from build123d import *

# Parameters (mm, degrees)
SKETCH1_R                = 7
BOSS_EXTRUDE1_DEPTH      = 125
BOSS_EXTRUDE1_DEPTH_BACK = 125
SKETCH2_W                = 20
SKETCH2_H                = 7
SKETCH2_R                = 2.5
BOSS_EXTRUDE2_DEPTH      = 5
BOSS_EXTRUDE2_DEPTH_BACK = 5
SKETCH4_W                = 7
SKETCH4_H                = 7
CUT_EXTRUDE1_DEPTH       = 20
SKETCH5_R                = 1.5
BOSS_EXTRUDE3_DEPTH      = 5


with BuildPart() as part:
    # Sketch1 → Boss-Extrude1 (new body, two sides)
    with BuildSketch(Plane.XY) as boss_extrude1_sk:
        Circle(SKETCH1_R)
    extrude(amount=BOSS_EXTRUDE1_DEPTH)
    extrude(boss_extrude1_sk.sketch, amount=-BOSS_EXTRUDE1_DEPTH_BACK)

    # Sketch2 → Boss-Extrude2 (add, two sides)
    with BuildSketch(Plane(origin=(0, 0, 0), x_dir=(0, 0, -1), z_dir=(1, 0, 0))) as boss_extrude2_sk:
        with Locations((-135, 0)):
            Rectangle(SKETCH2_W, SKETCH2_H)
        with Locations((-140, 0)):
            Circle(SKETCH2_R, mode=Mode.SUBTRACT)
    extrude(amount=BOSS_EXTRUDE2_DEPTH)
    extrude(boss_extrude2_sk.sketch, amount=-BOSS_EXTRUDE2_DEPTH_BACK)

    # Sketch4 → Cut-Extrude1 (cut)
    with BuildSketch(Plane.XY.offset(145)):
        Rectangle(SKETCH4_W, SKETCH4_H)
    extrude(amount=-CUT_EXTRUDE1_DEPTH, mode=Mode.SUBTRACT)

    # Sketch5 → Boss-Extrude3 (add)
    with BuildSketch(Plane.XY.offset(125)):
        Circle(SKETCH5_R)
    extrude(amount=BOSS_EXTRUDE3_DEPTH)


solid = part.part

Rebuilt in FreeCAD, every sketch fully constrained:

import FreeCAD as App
import Part
import Sketcher
Q = App.Units.Quantity

doc = App.newDocument("Part")
params = doc.addObject("Spreadsheet::Sheet", "Params")
for row, (alias, value) in enumerate([
    ("sketch1_diameter", "14 mm"),
    ("pad1_length", "125 mm"),
    ("pad1_length2", "125 mm"),
    ("sketch2_diameter", "5 mm"),
    ("sketch2_width", "7 mm"),
    ("sketch2_height", "20 mm"),
    ("pad2_length", "5 mm"),
    ("pad2_length2", "5 mm"),
    ("sketch3_width", "7 mm"),
    ("pocket1_length", "20 mm"),
    ("sketch4_diameter", "3 mm"),
    ("pad3_length", "5 mm"),
], start=1):
    params.set(f"A{row}", alias)
    params.set(f"B{row}", "=" + value)
    params.setAlias(f"B{row}", alias)

body = doc.addObject("PartDesign::Body", "Body")

sketch1 = body.newObject("Sketcher::SketchObject", "Sketch")
sketch1.AttachmentSupport = (doc.getObject("XY_Plane"), [""])
sketch1.MapMode = "FlatFace"
sketch1.addGeometry(Part.Circle(App.Vector(0, 0, 0), App.Vector(0, 0, 1), 7), False)
sketch1.addConstraint([
    Sketcher.Constraint("Coincident", 0, 3, -1, 1),
    Sketcher.Constraint("Diameter", 0, Q("14 mm")),
])
sketch1.setExpression("Constraints[1]", "Params.sketch1_diameter")
pad1 = body.newObject("PartDesign::Pad", "Pad")
pad1.Profile = sketch1
pad1.Type = "TwoLengths"
pad1.setExpression("Length", "Params.pad1_length")
pad1.setExpression("Length2", "Params.pad1_length2")

sketch2 = body.newObject("Sketcher::SketchObject", "Sketch001")
sketch2.AttachmentSupport = (doc.getObject("YZ_Plane"), [""])
sketch2.MapMode = "FlatFace"
sketch2.addGeometry([
    Part.LineSegment(App.Vector(3.5, 145, 0), App.Vector(-3.5, 145, 0)),
    Part.LineSegment(App.Vector(-3.5, 145, 0), App.Vector(-3.5, 125, 0)),
    Part.LineSegment(App.Vector(-3.5, 125, 0), App.Vector(3.5, 125, 0)),
    Part.LineSegment(App.Vector(3.5, 125, 0), App.Vector(3.5, 145, 0)),
    Part.Circle(App.Vector(0, 140, 0), App.Vector(0, 0, 1), 2.5),
], False)
sketch2.addConstraint([
    Sketcher.Constraint("Coincident", 0, 2, 1, 1),
    Sketcher.Constraint("Coincident", 1, 2, 2, 1),
    Sketcher.Constraint("Coincident", 2, 2, 3, 1),
    Sketcher.Constraint("Coincident", 3, 2, 0, 1),
    Sketcher.Constraint("Horizontal", 0),
    Sketcher.Constraint("Vertical", 1),
    Sketcher.Constraint("Horizontal", 2),
    Sketcher.Constraint("Vertical", 3),
    Sketcher.Constraint("PointOnObject", 4, 3, -2),
    Sketcher.Constraint("Diameter", 4, Q("5 mm")),
    Sketcher.Constraint("DistanceX", 0, 2, 0, 1, Q("7 mm")),
    Sketcher.Constraint("DistanceY", 1, 2, 1, 1, Q("20 mm")),
    Sketcher.Constraint("DistanceY", -1, 1, 4, 3, Q("140 mm")),
    Sketcher.Constraint("DistanceY", -1, 1, 0, 2, Q("145 mm")),
    Sketcher.Constraint("DistanceX", 0, 2, -1, 1, Q("3.5 mm")),
])
sketch2.setExpression("Constraints[9]", "Params.sketch2_diameter")
sketch2.setExpression("Constraints[10]", "Params.sketch2_width")
sketch2.setExpression("Constraints[11]", "Params.sketch2_height")
pad2 = body.newObject("PartDesign::Pad", "Pad001")
pad2.Profile = sketch2
pad2.Type = "TwoLengths"
pad2.setExpression("Length", "Params.pad2_length")
pad2.setExpression("Length2", "Params.pad2_length2")

sketch3 = body.newObject("Sketcher::SketchObject", "Sketch002")
sketch3.AttachmentSupport = (doc.getObject("XY_Plane"), [""])
sketch3.MapMode = "FlatFace"
sketch3.AttachmentOffset = App.Placement(App.Vector(0, 0, 145), App.Rotation())
sketch3.addGeometry([
    Part.LineSegment(App.Vector(-4, 4, 0), App.Vector(-4, -4, 0)),
    Part.LineSegment(App.Vector(-4, -4, 0), App.Vector(4, -4, 0)),
    Part.LineSegment(App.Vector(4, -4, 0), App.Vector(4, 4, 0)),
    Part.LineSegment(App.Vector(4, 4, 0), App.Vector(-4, 4, 0)),
], False)
sketch3.addConstraint([
    Sketcher.Constraint("Coincident", 0, 2, 1, 1),
    Sketcher.Constraint("Coincident", 1, 2, 2, 1),
    Sketcher.Constraint("Coincident", 2, 2, 3, 1),
    Sketcher.Constraint("Coincident", 3, 2, 0, 1),
    Sketcher.Constraint("Vertical", 0),
    Sketcher.Constraint("Horizontal", 1),
    Sketcher.Constraint("Vertical", 2),
    Sketcher.Constraint("Horizontal", 3),
    Sketcher.Constraint("Symmetric", 0, 2, 2, 2, -1, 1),
    Sketcher.Constraint("Equal", 3, 0),
    Sketcher.Constraint("DistanceX", 1, 1, 1, 2, Q("7 mm")),
])
sketch3.setExpression("Constraints[10]", "Params.sketch3_width")
pocket1 = body.newObject("PartDesign::Pocket", "Pocket")
pocket1.Profile = sketch3
pocket1.setExpression("Length", "Params.pocket1_length")

sketch4 = body.newObject("Sketcher::SketchObject", "Sketch003")
sketch4.AttachmentSupport = (doc.getObject("XY_Plane"), [""])
sketch4.MapMode = "FlatFace"
sketch4.AttachmentOffset = App.Placement(App.Vector(0, 0, 125), App.Rotation())
sketch4.addGeometry(Part.Circle(App.Vector(0, 0, 0), App.Vector(0, 0, 1), 1.5), False)
sketch4.addConstraint([
    Sketcher.Constraint("Coincident", 0, 3, -1, 1),
    Sketcher.Constraint("Diameter", 0, Q("3 mm")),
])
sketch4.setExpression("Constraints[1]", "Params.sketch4_diameter")
pad3 = body.newObject("PartDesign::Pad", "Pad002")
pad3.Profile = sketch4
pad3.setExpression("Length", "Params.pad3_length")

doc.recompute()
